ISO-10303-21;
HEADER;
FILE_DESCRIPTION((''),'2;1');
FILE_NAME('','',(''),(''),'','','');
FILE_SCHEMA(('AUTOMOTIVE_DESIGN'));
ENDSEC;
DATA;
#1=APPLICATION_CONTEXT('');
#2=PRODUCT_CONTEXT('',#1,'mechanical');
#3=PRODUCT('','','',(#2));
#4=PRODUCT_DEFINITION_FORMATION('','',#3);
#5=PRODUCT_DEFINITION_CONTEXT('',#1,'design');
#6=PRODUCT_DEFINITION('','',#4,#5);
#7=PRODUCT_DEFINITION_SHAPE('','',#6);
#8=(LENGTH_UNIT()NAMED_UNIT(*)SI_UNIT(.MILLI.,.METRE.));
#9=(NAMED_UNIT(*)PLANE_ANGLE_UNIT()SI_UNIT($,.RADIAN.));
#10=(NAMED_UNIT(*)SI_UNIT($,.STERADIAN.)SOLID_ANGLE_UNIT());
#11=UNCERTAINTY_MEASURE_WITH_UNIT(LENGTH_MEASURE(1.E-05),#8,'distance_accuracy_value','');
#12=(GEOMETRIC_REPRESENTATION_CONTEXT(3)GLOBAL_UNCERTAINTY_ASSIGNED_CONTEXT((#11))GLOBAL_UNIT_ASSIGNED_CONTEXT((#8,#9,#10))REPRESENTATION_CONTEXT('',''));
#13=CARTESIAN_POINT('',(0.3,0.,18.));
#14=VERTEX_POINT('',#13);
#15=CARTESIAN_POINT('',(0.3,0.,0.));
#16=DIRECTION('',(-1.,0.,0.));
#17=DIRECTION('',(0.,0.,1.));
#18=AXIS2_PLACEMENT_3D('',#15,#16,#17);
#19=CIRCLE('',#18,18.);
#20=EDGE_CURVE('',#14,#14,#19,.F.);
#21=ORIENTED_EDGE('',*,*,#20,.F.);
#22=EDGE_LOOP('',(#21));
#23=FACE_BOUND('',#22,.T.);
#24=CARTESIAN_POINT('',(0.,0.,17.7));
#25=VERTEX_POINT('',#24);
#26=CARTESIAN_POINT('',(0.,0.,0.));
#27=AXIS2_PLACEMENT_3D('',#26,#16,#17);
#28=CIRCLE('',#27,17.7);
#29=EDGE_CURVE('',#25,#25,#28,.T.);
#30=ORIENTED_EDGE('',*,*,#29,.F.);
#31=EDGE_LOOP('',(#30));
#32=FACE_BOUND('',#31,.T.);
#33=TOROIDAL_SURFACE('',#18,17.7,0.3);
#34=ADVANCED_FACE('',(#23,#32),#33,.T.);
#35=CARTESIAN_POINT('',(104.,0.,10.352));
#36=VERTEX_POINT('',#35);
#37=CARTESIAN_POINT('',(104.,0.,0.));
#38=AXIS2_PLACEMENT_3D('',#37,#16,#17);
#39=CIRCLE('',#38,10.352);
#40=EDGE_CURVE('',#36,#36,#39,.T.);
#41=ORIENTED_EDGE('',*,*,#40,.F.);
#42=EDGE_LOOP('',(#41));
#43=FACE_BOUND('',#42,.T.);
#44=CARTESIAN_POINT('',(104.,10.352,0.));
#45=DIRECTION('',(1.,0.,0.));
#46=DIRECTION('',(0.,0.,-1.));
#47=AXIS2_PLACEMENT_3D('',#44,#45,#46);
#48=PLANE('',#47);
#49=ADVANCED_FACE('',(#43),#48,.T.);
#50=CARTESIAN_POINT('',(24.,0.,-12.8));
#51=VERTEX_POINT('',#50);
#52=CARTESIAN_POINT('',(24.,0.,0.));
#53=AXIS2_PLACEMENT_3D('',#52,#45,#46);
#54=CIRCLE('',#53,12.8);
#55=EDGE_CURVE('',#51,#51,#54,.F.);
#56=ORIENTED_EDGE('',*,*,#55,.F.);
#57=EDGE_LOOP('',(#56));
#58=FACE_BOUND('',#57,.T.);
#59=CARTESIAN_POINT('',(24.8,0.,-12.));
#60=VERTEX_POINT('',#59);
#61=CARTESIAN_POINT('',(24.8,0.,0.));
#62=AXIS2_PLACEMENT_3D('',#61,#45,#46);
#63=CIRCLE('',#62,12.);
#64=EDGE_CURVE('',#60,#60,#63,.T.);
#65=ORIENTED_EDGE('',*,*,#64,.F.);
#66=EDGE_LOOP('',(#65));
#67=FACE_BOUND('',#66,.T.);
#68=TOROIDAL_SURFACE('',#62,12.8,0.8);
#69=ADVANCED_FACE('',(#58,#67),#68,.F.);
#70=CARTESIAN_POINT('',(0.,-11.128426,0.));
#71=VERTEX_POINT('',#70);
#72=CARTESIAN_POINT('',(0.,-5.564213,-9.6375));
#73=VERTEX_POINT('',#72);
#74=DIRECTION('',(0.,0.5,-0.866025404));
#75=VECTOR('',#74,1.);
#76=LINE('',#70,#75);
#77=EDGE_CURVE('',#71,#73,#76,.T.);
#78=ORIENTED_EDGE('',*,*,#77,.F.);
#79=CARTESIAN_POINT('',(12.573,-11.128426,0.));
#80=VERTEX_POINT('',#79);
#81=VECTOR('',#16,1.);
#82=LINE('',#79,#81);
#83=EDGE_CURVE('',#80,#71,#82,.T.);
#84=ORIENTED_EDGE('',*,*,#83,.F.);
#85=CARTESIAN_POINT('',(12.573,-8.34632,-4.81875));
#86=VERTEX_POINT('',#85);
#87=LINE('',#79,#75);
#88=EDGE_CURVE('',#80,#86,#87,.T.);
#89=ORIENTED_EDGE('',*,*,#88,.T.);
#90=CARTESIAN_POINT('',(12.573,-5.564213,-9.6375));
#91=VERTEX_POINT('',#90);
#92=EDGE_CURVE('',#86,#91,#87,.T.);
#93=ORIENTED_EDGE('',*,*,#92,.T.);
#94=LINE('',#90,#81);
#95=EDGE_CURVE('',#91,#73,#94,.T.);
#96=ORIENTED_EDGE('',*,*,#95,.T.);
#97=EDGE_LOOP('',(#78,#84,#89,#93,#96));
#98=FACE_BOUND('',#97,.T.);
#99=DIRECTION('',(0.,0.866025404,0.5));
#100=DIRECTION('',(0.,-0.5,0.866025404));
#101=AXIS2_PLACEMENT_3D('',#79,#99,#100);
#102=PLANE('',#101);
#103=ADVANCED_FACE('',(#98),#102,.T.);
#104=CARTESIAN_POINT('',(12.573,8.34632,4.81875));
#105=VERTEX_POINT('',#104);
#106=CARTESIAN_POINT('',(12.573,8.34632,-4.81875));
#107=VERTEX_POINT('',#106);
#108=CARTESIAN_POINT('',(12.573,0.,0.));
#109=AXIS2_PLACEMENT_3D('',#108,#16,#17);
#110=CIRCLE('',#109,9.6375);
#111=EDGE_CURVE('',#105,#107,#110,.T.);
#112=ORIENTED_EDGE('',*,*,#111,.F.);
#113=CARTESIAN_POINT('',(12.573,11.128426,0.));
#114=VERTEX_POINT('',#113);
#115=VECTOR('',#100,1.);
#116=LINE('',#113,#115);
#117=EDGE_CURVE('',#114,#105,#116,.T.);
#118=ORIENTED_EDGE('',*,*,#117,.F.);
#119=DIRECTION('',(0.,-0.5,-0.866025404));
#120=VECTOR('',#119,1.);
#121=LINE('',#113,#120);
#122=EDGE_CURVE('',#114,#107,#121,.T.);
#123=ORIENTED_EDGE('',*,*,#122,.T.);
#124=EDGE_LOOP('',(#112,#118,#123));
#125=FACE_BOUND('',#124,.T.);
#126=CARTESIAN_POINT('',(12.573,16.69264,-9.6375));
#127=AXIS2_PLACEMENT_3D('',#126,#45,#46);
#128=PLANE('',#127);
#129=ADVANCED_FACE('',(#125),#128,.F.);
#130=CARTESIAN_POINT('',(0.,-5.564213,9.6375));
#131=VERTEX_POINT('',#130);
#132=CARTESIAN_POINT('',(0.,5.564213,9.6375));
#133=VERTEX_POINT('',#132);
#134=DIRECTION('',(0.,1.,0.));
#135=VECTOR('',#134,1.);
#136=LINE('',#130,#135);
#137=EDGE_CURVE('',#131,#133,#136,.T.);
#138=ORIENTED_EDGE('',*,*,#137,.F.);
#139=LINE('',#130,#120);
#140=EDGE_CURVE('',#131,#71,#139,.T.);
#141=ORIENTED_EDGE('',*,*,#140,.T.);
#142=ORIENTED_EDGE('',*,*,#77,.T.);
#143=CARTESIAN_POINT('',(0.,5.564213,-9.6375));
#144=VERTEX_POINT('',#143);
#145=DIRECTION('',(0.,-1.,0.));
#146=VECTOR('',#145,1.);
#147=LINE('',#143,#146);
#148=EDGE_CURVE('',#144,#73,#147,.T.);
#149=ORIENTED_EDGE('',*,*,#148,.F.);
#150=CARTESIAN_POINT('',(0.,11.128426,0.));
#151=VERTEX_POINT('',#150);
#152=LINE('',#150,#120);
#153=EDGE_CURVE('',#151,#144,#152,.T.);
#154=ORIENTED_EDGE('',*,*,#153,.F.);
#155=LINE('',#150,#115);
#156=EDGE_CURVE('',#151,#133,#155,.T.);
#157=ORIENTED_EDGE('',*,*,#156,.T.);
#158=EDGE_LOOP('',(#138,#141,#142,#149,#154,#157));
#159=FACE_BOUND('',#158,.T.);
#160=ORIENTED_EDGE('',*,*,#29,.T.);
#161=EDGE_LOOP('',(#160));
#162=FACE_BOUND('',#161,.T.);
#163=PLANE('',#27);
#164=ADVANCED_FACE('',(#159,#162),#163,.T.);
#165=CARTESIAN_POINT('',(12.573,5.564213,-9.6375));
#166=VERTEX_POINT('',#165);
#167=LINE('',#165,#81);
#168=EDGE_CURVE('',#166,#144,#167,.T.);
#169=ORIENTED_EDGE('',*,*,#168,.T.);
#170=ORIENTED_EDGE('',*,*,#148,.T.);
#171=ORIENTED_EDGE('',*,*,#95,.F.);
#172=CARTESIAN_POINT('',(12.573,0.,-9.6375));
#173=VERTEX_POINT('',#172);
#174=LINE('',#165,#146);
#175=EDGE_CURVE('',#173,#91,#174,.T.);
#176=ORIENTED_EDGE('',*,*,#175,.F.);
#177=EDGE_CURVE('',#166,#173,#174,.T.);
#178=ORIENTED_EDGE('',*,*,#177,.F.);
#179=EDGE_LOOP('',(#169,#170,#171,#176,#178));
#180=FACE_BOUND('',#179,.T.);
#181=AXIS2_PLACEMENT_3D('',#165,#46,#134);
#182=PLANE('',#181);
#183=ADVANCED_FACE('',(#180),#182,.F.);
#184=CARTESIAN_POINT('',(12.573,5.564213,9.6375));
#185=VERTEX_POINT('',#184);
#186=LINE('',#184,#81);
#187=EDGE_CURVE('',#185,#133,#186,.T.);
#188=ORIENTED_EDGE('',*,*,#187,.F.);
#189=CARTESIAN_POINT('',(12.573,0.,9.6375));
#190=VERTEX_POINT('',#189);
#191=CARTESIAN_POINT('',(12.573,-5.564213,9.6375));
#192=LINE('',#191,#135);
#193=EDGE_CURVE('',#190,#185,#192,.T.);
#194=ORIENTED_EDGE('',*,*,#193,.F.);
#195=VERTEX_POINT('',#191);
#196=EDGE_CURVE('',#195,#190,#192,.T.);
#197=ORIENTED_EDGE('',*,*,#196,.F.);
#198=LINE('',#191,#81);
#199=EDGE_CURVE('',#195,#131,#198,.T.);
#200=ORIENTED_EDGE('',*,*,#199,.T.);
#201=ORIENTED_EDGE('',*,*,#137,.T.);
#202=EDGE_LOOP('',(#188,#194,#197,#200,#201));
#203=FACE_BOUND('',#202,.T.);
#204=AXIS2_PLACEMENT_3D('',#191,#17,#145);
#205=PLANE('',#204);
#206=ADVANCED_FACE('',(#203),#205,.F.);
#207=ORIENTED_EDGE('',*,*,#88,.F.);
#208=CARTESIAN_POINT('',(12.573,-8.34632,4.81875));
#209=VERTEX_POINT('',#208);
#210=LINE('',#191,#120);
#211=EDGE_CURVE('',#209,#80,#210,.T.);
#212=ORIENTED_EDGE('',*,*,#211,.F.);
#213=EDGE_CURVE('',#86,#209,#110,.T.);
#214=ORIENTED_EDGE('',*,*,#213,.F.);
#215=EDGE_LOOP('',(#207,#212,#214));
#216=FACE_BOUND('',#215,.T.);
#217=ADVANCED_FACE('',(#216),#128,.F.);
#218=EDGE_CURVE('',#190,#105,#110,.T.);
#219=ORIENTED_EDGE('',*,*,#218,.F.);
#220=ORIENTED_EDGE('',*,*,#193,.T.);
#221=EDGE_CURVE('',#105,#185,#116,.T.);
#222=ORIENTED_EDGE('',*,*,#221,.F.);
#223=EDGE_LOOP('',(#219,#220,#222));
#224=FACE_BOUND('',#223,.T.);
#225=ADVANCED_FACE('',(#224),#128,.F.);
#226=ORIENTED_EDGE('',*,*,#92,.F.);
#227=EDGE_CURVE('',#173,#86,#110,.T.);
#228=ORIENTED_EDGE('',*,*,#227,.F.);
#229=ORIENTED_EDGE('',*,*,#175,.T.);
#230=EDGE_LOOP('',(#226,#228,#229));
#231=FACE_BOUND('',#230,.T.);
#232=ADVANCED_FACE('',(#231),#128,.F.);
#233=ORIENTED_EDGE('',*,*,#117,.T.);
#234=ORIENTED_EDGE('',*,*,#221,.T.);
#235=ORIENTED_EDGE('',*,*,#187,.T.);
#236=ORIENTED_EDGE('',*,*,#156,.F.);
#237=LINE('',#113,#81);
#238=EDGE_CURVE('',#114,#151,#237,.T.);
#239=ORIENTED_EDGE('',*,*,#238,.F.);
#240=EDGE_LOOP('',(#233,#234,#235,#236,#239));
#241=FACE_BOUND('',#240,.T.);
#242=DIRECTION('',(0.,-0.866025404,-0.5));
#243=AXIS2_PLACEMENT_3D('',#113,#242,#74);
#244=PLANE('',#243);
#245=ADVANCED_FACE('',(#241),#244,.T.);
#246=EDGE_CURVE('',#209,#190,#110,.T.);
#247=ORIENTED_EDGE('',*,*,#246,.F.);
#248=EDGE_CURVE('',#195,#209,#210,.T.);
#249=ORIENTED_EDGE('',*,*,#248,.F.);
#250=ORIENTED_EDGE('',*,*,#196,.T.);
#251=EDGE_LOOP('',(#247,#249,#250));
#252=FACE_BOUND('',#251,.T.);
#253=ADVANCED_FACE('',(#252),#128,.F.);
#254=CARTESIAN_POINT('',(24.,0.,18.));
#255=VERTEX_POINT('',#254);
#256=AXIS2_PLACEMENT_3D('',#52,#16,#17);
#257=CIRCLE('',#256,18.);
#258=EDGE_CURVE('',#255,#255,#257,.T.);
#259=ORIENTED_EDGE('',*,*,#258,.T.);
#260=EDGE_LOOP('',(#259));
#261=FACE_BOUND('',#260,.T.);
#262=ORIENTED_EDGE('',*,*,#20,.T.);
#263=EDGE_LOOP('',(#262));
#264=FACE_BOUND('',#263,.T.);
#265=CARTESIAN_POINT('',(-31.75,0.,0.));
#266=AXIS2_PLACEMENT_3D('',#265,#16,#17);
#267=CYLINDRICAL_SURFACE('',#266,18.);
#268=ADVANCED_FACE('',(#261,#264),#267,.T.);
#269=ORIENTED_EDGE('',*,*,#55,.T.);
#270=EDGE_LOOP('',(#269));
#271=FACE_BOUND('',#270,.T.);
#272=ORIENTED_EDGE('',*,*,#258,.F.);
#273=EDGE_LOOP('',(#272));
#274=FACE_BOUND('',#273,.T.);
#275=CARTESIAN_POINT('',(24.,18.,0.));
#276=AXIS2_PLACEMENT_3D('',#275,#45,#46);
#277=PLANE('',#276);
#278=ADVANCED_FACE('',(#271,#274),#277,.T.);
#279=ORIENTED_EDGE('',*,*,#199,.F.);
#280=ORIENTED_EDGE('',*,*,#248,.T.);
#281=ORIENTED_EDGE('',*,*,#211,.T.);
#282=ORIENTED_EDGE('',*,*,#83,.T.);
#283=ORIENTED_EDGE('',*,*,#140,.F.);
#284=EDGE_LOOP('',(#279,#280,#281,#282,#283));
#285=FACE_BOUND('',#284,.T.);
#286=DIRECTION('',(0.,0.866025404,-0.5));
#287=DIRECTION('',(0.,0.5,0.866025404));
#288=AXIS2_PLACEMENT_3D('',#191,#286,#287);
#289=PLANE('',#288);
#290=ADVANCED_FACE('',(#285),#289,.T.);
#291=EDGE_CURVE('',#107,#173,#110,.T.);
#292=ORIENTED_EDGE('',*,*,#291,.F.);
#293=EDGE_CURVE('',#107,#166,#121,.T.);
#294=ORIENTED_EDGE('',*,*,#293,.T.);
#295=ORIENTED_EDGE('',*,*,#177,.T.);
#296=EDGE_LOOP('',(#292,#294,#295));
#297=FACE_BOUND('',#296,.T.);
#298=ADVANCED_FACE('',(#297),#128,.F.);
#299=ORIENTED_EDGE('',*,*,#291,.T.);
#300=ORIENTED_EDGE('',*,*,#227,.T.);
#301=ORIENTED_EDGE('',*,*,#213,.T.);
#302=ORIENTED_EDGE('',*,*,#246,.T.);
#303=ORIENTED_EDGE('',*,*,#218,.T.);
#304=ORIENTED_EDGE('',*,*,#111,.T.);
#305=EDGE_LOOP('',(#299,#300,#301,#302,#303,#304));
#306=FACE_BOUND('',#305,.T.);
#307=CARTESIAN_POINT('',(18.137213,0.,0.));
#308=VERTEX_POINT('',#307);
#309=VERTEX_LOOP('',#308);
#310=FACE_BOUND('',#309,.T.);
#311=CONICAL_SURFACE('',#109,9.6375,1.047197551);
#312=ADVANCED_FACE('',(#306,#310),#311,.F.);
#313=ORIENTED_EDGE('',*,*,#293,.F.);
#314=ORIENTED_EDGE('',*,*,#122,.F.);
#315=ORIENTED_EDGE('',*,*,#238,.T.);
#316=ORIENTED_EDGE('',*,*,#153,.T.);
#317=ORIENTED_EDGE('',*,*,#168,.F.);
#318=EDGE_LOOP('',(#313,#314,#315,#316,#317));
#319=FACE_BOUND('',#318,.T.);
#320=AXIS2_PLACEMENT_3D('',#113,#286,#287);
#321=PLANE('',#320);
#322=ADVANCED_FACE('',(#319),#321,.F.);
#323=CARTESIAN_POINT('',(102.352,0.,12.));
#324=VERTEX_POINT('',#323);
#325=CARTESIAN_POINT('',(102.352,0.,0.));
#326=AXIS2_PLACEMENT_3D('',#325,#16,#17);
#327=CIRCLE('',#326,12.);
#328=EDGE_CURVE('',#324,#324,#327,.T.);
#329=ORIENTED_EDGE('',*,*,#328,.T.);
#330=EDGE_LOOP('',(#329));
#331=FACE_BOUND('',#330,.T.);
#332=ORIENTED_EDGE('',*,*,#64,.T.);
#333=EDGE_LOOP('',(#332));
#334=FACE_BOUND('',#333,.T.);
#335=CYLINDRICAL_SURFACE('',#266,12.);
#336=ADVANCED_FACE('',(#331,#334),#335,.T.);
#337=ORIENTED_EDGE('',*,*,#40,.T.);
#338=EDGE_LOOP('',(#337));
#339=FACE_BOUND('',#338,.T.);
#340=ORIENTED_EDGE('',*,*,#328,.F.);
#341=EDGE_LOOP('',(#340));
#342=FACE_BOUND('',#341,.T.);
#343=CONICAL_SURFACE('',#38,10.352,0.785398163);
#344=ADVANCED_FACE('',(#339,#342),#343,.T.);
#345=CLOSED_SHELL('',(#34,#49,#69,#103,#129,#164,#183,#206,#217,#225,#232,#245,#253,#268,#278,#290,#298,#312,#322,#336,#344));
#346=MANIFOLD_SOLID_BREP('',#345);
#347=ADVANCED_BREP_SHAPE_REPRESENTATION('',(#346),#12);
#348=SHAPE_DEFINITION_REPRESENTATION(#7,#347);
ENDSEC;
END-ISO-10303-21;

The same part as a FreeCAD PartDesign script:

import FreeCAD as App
import Part
import Sketcher
Q = App.Units.Quantity


def edges_at(feature, points):
    """Names of the edges that pass closest to the given points."""
    edges = feature.Shape.Edges
    near = lambda p: min(range(len(edges)), key=lambda i: edges[i].distToShape(Part.Vertex(*p))[0])
    return sorted({f"Edge{near(p) + 1}" for p in points})


def add_polygon(sketch, points):
    """Adds a closed chain of lines whose ends are joined by coincident constraints."""
    first, n = sketch.GeometryCount, len(points)
    for a, b in zip(points, points[1:] + points[:1]):
        sketch.addGeometry(Part.LineSegment(App.Vector(*a, 0), App.Vector(*b, 0)), False)
    for i in range(n):
        sketch.addConstraint(Sketcher.Constraint("Coincident", first + i, 2, first + (i + 1) % n, 1))

doc = App.newDocument("Part")
body = doc.addObject("PartDesign::Body", "Body")

# Sketch on XY plane
sketch1 = doc.addObject("Sketcher::SketchObject", "Sketch")
body.addObject(sketch1)
sketch1.AttachmentSupport = (doc.XY_Plane, [""])
sketch1.MapMode = "FlatFace"
add_polygon(sketch1, [(0, 18), (0, 0), (104, 0), (104, 10.4), (102.4, 12), (24, 12), (24, 18)])  # lines 0-6
sketch1.addConstraint(Sketcher.Constraint("Vertical", 0))
sketch1.addConstraint(Sketcher.Constraint("Horizontal", 1))
sketch1.addConstraint(Sketcher.Constraint("Vertical", 2))
sketch1.addConstraint(Sketcher.Constraint("Horizontal", 4))
sketch1.addConstraint(Sketcher.Constraint("Vertical", 5))
sketch1.addConstraint(Sketcher.Constraint("Horizontal", 6))
sketch1.addConstraint(Sketcher.Constraint("Coincident", 0, 2, -1, 1))
sketch1.addConstraint(Sketcher.Constraint("DistanceX", 1, 1, 1, 2, 104.0))
sketch1.addConstraint(Sketcher.Constraint("DistanceX", 6, 2, 6, 1, 24.0))
sketch1.addConstraint(Sketcher.Constraint("DistanceY", 0, 2, 0, 1, 18.0))
sketch1.addConstraint(Sketcher.Constraint("DistanceY", 5, 1, 5, 2, 6.0))
sketch1.addConstraint(Sketcher.Constraint("Angle", 3, Q("135 deg")))
sketch1.addConstraint(Sketcher.Constraint("DistanceX", 4, 2, 4, 1, 78.352))
revolution = doc.addObject("PartDesign::Revolution", "Revolution")
body.addObject(revolution)
revolution.Profile = sketch1
revolution.ReferenceAxis = (sketch1, ["H_Axis"])
revolution.Angle = 360
doc.recompute()

fillet = doc.addObject("PartDesign::Fillet", "Fillet")
body.addObject(fillet)
fillet.Base = (revolution, edges_at(revolution, [(24, -12, 0)]))
fillet.Radius = 0.8
doc.recompute()

fillet2 = doc.addObject("PartDesign::Fillet", "Fillet001")
body.addObject(fillet2)
fillet2.Base = (fillet, edges_at(fillet, [(0, -18, 0)]))
fillet2.Radius = 0.3

# Sketch on XY plane
sketch2 = doc.addObject("Sketcher::SketchObject", "Sketch001")
body.addObject(sketch2)
sketch2.AttachmentSupport = (doc.XY_Plane, [""])
sketch2.MapMode = "FlatFace"
add_polygon(sketch2, [(13, 10), (0, 10), (0, 0), (18, 0)])  # lines 0-3
sketch2.addConstraint(Sketcher.Constraint("Horizontal", 0))
sketch2.addConstraint(Sketcher.Constraint("Vertical", 1))
sketch2.addConstraint(Sketcher.Constraint("Horizontal", 2))
sketch2.addConstraint(Sketcher.Constraint("Coincident", 1, 2, -1, 1))
sketch2.addConstraint(Sketcher.Constraint("Angle", 3, Q("120 deg")))
sketch2.addConstraint(Sketcher.Constraint("DistanceX", 0, 2, 0, 1, 12.573))
sketch2.addConstraint(Sketcher.Constraint("DistanceY", 1, 2, 1, 1, 9.6375))
groove = doc.addObject("PartDesign::Groove", "Groove")
body.addObject(groove)
groove.Profile = sketch2
groove.ReferenceAxis = (sketch2, ["H_Axis"])
groove.Angle = 360

# Sketch on YZ plane
sketch3 = doc.addObject("Sketcher::SketchObject", "Sketch002")
body.addObject(sketch3)
sketch3.AttachmentSupport = (doc.YZ_Plane, [""])
sketch3.MapMode = "FlatFace"
add_polygon(sketch3, [(11, 0), (6, -10), (-6, -10), (-11, 0), (-6, 10), (6, 10)])  # lines 0-5
sketch3.addConstraint(Sketcher.Constraint("Horizontal", 1))
sketch3.addConstraint(Sketcher.Constraint("Horizontal", 4))
sketch3.addConstraint(Sketcher.Constraint("Symmetric", 0, 2, 3, 2, -1, 1))
sketch3.addConstraint(Sketcher.Constraint("Symmetric", 2, 2, 5, 2, -1, 1))
sketch3.addConstraint(Sketcher.Constraint("PointOnObject", 2, 2, -1))
sketch3.addConstraint(Sketcher.Constraint("Parallel", 2, 5))
sketch3.addConstraint(Sketcher.Constraint("Vertical", 1, 2, 3, 2))
sketch3.addConstraint(Sketcher.Constraint("Angle", 0, Q("-120 deg")))
sketch3.addConstraint(Sketcher.Constraint("DistanceY", 1, 2, 3, 2, 19.275))
sketch3.addConstraint(Sketcher.Constraint("DistanceX", 1, 2, 1, 1, 11.128426))
pocket1 = doc.addObject("PartDesign::Pocket", "Pocket")
body.addObject(pocket1)
pocket1.Profile = sketch3
pocket1.Length = 12.573
pocket1.Reversed = True

doc.recompute()
